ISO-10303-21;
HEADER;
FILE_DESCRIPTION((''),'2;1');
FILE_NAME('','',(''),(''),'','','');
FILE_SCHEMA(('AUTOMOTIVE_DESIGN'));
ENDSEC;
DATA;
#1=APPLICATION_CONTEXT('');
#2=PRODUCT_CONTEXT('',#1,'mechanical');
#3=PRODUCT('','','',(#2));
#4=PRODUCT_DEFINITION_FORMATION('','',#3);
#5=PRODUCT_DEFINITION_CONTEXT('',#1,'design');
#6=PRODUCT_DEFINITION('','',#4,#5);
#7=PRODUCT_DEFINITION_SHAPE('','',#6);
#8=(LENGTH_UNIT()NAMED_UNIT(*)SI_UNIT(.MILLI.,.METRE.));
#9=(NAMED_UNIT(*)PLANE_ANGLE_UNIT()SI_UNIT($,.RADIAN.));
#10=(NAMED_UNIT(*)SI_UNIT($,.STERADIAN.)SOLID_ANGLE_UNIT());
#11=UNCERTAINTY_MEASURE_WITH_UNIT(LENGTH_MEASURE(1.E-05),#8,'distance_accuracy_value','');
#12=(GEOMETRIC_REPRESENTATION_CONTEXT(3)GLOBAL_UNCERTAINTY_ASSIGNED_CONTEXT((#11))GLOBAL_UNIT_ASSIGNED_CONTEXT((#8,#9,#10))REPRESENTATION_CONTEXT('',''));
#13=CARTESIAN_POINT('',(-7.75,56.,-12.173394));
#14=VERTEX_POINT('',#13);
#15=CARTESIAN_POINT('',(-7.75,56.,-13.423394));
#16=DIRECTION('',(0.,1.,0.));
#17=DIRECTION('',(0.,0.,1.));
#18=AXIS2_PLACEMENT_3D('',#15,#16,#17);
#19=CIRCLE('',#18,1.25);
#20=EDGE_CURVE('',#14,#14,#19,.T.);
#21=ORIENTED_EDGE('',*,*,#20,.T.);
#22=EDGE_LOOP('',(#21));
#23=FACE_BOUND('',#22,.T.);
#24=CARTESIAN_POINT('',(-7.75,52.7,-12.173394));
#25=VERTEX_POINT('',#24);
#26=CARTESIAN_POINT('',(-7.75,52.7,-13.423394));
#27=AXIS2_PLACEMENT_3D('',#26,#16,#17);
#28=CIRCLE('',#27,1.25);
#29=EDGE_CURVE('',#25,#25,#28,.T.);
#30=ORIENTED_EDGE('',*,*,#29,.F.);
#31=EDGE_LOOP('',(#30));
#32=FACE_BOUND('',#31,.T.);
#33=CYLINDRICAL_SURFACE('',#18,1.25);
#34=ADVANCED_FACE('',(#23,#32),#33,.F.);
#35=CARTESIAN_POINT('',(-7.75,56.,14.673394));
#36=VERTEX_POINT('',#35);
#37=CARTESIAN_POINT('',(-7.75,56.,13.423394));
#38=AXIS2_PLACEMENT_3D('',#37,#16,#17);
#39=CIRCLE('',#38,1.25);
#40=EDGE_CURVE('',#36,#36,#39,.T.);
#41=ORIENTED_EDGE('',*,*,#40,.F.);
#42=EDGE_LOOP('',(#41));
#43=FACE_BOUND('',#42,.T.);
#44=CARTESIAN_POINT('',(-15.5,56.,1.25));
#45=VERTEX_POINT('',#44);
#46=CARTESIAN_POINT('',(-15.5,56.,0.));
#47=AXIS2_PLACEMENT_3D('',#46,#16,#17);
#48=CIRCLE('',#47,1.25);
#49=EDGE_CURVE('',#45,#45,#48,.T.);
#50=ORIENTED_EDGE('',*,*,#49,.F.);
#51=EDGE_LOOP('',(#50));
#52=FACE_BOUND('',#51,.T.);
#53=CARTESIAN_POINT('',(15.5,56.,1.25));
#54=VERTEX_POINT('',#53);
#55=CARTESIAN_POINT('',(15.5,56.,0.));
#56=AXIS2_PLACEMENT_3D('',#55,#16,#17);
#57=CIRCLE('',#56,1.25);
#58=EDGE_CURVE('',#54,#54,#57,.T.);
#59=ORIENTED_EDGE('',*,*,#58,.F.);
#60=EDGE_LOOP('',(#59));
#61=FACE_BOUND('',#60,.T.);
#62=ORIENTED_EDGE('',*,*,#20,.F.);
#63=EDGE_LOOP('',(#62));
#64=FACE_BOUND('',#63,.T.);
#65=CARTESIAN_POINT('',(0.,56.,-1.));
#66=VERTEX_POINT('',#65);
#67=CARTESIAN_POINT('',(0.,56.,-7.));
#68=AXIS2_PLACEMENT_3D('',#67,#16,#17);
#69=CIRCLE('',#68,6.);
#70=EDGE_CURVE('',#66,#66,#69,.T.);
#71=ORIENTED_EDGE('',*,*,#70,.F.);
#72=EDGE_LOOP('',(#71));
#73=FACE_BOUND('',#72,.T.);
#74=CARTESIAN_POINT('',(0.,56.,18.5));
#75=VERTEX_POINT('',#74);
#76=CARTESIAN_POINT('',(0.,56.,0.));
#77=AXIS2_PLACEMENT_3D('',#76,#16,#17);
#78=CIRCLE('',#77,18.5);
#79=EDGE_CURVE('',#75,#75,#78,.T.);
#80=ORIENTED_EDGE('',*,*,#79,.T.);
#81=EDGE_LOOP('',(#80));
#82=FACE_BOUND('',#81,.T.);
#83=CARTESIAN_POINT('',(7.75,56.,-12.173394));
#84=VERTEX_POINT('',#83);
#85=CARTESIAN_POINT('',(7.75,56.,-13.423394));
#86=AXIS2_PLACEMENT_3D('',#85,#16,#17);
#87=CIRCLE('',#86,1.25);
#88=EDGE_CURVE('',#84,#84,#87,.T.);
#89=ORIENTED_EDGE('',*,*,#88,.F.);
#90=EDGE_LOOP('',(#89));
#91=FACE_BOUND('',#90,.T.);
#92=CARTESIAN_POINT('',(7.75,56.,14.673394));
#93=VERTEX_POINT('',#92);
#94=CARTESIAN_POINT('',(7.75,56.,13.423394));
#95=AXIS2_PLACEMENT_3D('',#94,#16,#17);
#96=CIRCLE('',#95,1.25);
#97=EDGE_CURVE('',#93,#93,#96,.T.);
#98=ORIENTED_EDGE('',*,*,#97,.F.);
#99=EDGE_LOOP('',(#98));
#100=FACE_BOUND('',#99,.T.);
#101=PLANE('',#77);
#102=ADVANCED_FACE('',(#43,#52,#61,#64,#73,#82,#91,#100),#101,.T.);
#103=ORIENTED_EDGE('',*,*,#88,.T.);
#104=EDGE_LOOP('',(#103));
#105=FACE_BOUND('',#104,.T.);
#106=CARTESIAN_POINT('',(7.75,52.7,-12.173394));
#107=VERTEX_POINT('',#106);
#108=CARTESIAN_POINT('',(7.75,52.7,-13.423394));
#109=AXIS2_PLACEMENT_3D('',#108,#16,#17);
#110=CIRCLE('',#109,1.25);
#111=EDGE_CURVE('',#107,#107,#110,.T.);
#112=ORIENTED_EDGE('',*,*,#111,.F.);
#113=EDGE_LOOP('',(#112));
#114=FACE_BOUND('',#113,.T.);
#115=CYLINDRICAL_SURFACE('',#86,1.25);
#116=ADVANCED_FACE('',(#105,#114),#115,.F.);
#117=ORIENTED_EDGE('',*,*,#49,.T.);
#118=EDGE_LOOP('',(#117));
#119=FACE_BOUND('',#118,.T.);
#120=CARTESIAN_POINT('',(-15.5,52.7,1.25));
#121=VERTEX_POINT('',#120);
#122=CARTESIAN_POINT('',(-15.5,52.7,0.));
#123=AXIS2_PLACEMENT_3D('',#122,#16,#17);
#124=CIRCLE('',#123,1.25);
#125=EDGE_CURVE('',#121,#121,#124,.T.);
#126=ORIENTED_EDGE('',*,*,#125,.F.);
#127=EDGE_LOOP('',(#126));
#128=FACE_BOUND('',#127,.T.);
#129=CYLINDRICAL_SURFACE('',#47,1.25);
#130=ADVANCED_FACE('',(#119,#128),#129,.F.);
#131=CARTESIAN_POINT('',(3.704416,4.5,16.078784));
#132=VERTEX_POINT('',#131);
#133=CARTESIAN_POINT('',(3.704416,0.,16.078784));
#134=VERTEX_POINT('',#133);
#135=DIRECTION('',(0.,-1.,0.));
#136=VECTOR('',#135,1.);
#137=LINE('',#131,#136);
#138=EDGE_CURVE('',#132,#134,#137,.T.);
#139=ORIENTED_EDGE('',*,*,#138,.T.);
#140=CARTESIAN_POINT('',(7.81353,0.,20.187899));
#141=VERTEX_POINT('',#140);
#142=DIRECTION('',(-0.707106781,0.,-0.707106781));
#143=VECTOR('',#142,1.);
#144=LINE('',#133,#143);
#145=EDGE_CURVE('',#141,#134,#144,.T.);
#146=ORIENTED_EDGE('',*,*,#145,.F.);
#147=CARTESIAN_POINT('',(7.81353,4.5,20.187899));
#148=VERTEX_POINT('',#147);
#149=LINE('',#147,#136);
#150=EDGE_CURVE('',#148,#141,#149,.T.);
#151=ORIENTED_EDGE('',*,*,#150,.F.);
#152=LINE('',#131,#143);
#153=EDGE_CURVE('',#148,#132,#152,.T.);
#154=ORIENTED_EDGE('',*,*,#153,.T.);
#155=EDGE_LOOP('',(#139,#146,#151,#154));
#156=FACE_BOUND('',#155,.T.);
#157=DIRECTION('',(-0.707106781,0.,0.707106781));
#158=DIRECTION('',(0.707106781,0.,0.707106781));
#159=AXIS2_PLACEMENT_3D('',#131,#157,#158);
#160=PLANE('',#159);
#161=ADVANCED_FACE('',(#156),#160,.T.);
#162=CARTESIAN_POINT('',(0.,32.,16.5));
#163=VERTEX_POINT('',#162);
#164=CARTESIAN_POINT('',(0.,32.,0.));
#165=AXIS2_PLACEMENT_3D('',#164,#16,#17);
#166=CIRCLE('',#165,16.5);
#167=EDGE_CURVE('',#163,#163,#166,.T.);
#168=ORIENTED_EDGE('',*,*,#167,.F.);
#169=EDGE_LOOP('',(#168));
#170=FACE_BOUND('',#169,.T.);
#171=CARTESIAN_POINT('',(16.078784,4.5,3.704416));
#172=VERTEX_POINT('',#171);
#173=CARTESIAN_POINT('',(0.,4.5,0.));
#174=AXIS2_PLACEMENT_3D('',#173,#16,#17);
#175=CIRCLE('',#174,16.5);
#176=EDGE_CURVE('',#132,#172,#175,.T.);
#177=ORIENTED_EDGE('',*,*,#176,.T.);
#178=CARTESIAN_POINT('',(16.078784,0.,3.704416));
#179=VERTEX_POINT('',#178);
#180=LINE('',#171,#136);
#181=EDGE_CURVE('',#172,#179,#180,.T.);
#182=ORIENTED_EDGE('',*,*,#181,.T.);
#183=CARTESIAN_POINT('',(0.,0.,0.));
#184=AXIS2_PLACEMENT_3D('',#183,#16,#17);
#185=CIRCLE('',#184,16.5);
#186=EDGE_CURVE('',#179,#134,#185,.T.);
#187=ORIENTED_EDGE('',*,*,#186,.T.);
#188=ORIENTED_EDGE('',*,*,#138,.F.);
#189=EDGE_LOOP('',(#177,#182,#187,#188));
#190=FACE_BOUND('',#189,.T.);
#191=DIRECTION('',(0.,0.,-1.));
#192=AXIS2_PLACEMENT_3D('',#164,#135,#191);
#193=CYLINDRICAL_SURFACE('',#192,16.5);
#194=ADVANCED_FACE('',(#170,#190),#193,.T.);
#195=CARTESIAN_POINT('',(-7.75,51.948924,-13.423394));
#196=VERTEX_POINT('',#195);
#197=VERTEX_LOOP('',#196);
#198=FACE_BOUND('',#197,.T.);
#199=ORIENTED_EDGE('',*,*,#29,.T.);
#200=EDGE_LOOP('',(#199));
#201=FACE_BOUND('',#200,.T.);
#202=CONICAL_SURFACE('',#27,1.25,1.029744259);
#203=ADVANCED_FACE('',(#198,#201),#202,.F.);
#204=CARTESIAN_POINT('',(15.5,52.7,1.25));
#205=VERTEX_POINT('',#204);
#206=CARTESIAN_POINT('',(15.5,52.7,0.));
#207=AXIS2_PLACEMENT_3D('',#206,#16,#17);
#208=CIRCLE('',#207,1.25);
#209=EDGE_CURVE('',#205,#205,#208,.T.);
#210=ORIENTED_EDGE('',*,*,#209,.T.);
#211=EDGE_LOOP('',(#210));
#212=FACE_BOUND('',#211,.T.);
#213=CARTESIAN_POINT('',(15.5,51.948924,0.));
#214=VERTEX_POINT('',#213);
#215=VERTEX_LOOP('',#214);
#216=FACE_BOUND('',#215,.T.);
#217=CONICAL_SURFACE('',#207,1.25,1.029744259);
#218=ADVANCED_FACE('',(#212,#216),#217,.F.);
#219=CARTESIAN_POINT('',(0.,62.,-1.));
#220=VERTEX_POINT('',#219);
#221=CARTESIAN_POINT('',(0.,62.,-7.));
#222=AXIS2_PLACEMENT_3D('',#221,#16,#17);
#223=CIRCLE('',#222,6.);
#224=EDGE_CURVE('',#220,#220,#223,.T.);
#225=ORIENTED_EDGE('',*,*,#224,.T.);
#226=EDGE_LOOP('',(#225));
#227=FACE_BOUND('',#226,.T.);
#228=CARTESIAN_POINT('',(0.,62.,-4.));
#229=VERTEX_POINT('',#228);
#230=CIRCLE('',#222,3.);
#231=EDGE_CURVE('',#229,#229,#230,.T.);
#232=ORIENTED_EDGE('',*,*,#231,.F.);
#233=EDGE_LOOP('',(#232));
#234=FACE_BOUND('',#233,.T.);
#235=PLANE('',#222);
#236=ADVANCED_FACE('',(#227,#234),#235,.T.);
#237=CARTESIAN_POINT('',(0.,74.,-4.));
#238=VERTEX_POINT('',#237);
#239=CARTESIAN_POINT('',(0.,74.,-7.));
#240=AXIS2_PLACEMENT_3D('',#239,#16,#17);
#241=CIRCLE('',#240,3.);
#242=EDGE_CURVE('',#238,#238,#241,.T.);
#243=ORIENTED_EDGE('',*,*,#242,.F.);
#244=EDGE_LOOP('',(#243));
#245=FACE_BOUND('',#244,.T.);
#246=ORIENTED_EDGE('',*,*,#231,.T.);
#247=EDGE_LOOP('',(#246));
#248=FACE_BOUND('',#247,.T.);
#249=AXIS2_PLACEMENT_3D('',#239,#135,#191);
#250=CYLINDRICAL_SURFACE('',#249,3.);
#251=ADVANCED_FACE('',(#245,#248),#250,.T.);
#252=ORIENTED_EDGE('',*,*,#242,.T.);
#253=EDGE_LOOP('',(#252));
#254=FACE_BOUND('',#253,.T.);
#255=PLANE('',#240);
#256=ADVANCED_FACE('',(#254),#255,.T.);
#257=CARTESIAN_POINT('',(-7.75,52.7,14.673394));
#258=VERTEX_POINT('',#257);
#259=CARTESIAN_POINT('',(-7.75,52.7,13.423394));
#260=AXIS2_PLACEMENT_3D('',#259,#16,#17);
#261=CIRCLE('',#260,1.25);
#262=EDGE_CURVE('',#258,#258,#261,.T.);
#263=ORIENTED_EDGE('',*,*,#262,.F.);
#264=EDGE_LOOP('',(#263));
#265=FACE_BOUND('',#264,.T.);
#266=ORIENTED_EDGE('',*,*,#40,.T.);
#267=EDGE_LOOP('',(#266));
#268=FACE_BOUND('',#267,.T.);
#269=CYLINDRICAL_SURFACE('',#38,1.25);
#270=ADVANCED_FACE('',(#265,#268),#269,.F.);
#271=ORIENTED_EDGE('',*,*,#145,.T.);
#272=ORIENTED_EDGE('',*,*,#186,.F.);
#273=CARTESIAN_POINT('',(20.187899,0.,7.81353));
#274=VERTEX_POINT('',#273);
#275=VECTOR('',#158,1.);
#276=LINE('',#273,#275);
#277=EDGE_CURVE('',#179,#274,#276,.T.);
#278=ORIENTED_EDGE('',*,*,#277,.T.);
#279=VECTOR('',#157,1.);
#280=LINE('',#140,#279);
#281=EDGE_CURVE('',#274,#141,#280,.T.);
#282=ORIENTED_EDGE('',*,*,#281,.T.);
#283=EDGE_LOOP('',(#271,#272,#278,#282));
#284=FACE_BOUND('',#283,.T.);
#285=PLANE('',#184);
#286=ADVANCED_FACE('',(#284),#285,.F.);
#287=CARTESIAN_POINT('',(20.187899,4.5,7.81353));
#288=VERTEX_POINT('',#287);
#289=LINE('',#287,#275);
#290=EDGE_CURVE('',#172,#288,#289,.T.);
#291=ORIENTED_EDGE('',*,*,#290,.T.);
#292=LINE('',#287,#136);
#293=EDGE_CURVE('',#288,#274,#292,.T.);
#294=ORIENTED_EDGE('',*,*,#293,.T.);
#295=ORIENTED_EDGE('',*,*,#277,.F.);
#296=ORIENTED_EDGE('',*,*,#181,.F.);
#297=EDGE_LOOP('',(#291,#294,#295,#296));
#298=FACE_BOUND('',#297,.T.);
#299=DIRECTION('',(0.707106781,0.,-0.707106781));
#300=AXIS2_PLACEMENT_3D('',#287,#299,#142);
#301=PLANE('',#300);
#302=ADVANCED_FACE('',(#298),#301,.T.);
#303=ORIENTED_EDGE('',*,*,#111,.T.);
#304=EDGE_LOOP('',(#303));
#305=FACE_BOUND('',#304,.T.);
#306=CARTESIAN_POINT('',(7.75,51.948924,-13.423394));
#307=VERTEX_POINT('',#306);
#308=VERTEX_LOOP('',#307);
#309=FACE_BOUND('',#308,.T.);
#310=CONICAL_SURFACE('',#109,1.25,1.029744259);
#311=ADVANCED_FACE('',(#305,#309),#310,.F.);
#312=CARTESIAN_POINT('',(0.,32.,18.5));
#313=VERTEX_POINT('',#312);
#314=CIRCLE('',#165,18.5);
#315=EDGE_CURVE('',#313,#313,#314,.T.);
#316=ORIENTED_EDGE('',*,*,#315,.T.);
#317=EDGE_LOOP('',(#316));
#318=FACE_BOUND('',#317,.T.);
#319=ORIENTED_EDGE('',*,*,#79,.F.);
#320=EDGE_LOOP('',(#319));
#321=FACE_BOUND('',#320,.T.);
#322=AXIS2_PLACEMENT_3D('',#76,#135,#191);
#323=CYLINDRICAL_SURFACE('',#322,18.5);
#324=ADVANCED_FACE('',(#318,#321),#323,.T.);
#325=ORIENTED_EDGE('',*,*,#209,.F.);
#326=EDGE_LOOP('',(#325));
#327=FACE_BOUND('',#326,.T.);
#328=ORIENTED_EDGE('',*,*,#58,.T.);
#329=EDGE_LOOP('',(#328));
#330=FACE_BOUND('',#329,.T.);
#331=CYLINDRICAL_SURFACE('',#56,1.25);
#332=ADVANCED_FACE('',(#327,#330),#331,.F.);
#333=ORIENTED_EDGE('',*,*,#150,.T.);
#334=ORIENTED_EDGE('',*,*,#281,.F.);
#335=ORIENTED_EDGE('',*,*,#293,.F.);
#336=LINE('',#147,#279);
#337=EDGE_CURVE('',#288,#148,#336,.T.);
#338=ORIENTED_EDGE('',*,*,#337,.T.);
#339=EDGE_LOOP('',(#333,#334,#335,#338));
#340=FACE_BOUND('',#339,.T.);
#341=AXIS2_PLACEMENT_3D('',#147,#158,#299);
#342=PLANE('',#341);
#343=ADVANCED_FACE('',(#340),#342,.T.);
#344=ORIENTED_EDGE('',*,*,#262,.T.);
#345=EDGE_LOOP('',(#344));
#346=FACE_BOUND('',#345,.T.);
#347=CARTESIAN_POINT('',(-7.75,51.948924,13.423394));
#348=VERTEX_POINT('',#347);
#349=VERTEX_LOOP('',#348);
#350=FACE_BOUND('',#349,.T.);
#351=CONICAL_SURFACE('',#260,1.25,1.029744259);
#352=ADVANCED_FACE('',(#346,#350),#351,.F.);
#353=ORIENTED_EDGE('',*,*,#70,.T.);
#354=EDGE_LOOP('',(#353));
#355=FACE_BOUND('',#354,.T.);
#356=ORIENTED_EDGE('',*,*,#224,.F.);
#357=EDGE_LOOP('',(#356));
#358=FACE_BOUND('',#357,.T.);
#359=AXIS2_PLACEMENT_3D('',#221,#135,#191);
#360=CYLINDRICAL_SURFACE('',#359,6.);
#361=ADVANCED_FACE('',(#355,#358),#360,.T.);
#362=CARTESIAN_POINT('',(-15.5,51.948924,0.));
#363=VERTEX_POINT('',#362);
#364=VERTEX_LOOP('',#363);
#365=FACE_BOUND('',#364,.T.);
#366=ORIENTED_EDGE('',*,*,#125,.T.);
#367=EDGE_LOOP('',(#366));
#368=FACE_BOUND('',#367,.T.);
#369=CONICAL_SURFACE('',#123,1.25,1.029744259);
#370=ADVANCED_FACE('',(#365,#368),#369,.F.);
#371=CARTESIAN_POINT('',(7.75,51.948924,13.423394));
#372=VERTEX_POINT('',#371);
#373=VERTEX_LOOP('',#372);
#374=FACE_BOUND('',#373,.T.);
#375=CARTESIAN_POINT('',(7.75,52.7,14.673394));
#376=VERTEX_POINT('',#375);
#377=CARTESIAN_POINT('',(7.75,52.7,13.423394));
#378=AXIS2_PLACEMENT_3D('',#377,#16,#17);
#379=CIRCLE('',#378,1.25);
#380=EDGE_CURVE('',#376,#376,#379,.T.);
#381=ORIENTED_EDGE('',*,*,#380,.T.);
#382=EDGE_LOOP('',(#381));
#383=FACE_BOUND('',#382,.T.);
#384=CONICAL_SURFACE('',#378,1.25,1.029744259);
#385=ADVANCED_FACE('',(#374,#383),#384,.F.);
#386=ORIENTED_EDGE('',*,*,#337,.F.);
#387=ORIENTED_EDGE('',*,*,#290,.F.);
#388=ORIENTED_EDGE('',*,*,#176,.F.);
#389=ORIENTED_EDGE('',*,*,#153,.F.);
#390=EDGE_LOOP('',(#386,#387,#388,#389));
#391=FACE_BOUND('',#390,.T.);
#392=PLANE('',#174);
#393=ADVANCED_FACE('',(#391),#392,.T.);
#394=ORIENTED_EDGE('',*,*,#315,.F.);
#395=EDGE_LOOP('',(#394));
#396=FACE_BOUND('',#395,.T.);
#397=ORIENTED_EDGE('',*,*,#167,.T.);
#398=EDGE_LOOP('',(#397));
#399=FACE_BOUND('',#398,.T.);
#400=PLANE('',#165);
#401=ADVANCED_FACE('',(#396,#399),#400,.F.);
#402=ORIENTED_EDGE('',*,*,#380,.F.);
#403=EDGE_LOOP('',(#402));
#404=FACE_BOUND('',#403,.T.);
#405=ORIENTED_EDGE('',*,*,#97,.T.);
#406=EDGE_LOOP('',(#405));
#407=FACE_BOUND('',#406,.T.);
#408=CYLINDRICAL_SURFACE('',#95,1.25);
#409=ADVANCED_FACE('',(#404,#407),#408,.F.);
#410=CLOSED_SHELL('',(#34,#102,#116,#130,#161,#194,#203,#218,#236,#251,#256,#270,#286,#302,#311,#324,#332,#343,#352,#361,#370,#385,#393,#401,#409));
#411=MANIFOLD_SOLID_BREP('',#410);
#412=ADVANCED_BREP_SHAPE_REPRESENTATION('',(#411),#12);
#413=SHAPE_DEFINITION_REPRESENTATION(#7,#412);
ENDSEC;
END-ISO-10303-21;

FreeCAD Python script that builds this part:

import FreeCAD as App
import Part
import Sketcher
from FreeCAD import Vector
Q = App.Units.Quantity

doc = App.newDocument("Part")
params = doc.addObject("Spreadsheet::Sheet", "Params")
for row, (alias, value) in enumerate([
    ("sketch1_diameter", "33 mm"),
    ("pad1_length", "32 mm"),
    ("sketch2_diameter", "37 mm"),
    ("pad2_length", "24 mm"),
    ("sketch3_diameter", "12 mm"),
    ("pad3_length", "6 mm"),
    ("sketch4_diameter", "6 mm"),
    ("pad4_length", "12 mm"),
    ("sketch5_diameter", "2.5 mm"),
    ("hole_diameter", "2.5 mm"),
    ("hole_depth", "3.3 mm"),
    ("sketch6_length", "17.5 mm"),
    ("pad5_length", "4.5 mm"),
], start=1):
    params.set(f"A{row}", alias)
    params.set(f"B{row}", "=" + value)
    params.setAlias(f"B{row}", alias)

body = doc.addObject("PartDesign::Body", "Body")

# Sketch on XZ plane
sketch1 = doc.addObject("Sketcher::SketchObject", "Sketch")
body.addObject(sketch1)
sketch1.AttachmentSupport = (doc.XZ_Plane, [""])
sketch1.MapMode = "FlatFace"
sketch1.addGeometry(Part.Circle(Vector(0, 0, 0), Vector(0, 0, 1), 16.5), False)
sketch1.addConstraint([
    Sketcher.Constraint("Coincident", 0, 3, -1, 1),
    Sketcher.Constraint("Diameter", 0, 33.0),
])
sketch1.setExpression("Constraints[1]", "Params.sketch1_diameter")
pad1 = doc.addObject("PartDesign::Pad", "Pad")
body.addObject(pad1)
pad1.Profile = sketch1
pad1.setExpression("Length", "Params.pad1_length")
pad1.Reversed = True

# Sketch on XZ plane
sketch2 = doc.addObject("Sketcher::SketchObject", "Sketch001")
body.addObject(sketch2)
sketch2.AttachmentSupport = (doc.XZ_Plane, [""])
sketch2.MapMode = "FlatFace"
sketch2.AttachmentOffset = App.Placement(Vector(0, 0, -32), App.Rotation())
sketch2.addGeometry(Part.Circle(Vector(0, 0, 0), Vector(0, 0, 1), 18.5), False)
sketch2.addConstraint([
    Sketcher.Constraint("Coincident", 0, 3, -1, 1),
    Sketcher.Constraint("Diameter", 0, 37.0),
])
sketch2.setExpression("Constraints[1]", "Params.sketch2_diameter")
pad2 = doc.addObject("PartDesign::Pad", "Pad001")
body.addObject(pad2)
pad2.Profile = sketch2
pad2.setExpression("Length", "Params.pad2_length")
pad2.Reversed = True

# Sketch on XZ plane
sketch3 = doc.addObject("Sketcher::SketchObject", "Sketch002")
body.addObject(sketch3)
sketch3.AttachmentSupport = (doc.XZ_Plane, [""])
sketch3.MapMode = "FlatFace"
sketch3.AttachmentOffset = App.Placement(Vector(0, 0, -56), App.Rotation())
sketch3.addGeometry(Part.Circle(Vector(0, -7, 0), Vector(0, 0, 1), 6), False)
sketch3.addConstraint([
    Sketcher.Constraint("PointOnObject", 0, 3, -2),
    Sketcher.Constraint("Diameter", 0, 12.0),
    Sketcher.Constraint("DistanceY", 0, 3, -1, 1, 7.0),
])
sketch3.setExpression("Constraints[1]", "Params.sketch3_diameter")
pad3 = doc.addObject("PartDesign::Pad", "Pad002")
body.addObject(pad3)
pad3.Profile = sketch3
pad3.setExpression("Length", "Params.pad3_length")
pad3.Reversed = True

# Sketch on XZ plane
sketch4 = doc.addObject("Sketcher::SketchObject", "Sketch003")
body.addObject(sketch4)
sketch4.AttachmentSupport = (doc.XZ_Plane, [""])
sketch4.MapMode = "FlatFace"
sketch4.AttachmentOffset = App.Placement(Vector(0, 0, -62), App.Rotation())
sketch4.addGeometry(Part.Circle(Vector(0, -7, 0), Vector(0, 0, 1), 3), False)
sketch4.addConstraint([
    Sketcher.Constraint("PointOnObject", 0, 3, -2),
    Sketcher.Constraint("Diameter", 0, 6.0),
    Sketcher.Constraint("DistanceY", 0, 3, -1, 1, 7.0),
])
sketch4.setExpression("Constraints[1]", "Params.sketch4_diameter")
pad4 = doc.addObject("PartDesign::Pad", "Pad003")
body.addObject(pad4)
pad4.Profile = sketch4
pad4.setExpression("Length", "Params.pad4_length")
pad4.Reversed = True

# Sketch on XZ plane
sketch5 = doc.addObject("Sketcher::SketchObject", "Sketch004")
body.addObject(sketch5)
sketch5.AttachmentSupport = (doc.XZ_Plane, [""])
sketch5.MapMode = "FlatFace"
sketch5.AttachmentOffset = App.Placement(Vector(0, 0, -56), App.Rotation())
sketch5.addGeometry([
    Part.Circle(Vector(-7.75, -13.423394, 0), Vector(0, 0, 1), 1.25),  # 0
    Part.Circle(Vector(7.75, -13.423394, 0), Vector(0, 0, 1), 1.25),  # 1
    Part.Circle(Vector(15.5, 0, 0), Vector(0, 0, 1), 1.25),  # 2
    Part.Circle(Vector(7.75, 13.423394, 0), Vector(0, 0, 1), 1.25),  # 3
    Part.Circle(Vector(-7.75, 13.423394, 0), Vector(0, 0, 1), 1.25),  # 4
    Part.Circle(Vector(-15.5, 0, 0), Vector(0, 0, 1), 1.25),  # 5
], False)
sketch5.addConstraint([
    Sketcher.Constraint("Equal", 0, 1),
    Sketcher.Constraint("Equal", 1, 2),
    Sketcher.Constraint("Equal", 2, 3),
    Sketcher.Constraint("Equal", 3, 4),
    Sketcher.Constraint("Equal", 4, 5),
    Sketcher.Constraint("Symmetric", 0, 3, 3, 3, -1, 1),
    Sketcher.Constraint("Symmetric", 1, 3, 4, 3, -1, 1),
    Sketcher.Constraint("Symmetric", 2, 3, 5, 3, -1, 1),
    Sketcher.Constraint("Symmetric", 0, 3, 1, 3, -2),
    Sketcher.Constraint("PointOnObject", 2, 3, -1),
    Sketcher.Constraint("Diameter", 0, 2.5),
    Sketcher.Constraint("DistanceX", 5, 3, 2, 3, 31.0),
    Sketcher.Constraint("DistanceX", 0, 3, 1, 3, 15.5),
    Sketcher.Constraint("DistanceY", 0, 3, -1, 1, 13.423394),
])
sketch5.setExpression("Constraints[10]", "Params.sketch5_diameter")
doc.recompute()
hole = doc.addObject("PartDesign::Hole", "Hole")
body.addObject(hole)
hole.Profile = sketch5
hole.ThreadType = "None"
hole.setExpression("Diameter", "Params.hole_diameter")
hole.DepthType = "Dimension"
hole.setExpression("Depth", "Params.hole_depth")
hole.DrillPoint = "Angled"
hole.DrillPointAngle = 118
hole.Reversed = True

# Sketch on XZ plane
sketch6 = doc.addObject("Sketcher::SketchObject", "Sketch005")
body.addObject(sketch6)
sketch6.AttachmentSupport = (doc.XZ_Plane, [""])
sketch6.MapMode = "FlatFace"
sketch6.addGeometry([
    Part.LineSegment(Vector(3.704416, 16.078784, 0), Vector(16.078784, 3.704416, 0)),
    Part.LineSegment(Vector(16.078784, 3.704416, 0), Vector(20.187899, 7.81353, 0)),
    Part.LineSegment(Vector(20.187899, 7.81353, 0), Vector(7.81353, 20.187899, 0)),
    Part.LineSegment(Vector(7.81353, 20.187899, 0), Vector(3.704416, 16.078784, 0)),
], False)
sketch6.addConstraint([
    Sketcher.Constraint("Coincident", 0, 2, 1, 1),
    Sketcher.Constraint("Coincident", 1, 2, 2, 1),
    Sketcher.Constraint("Coincident", 2, 2, 3, 1),
    Sketcher.Constraint("Coincident", 3, 2, 0, 1),
    Sketcher.Constraint("Perpendicular", 0, 1),
    Sketcher.Constraint("Perpendicular", 1, 2),
    Sketcher.Constraint("Perpendicular", 2, 3),
    Sketcher.Constraint("Angle", 0, Q("-45 deg")),
    Sketcher.Constraint("Distance", 0, 17.5),
    Sketcher.Constraint("DistanceX", -1, 1, 1, 2, 20.187899),
    Sketcher.Constraint("DistanceY", -1, 1, 2, 2, 20.187899),
    Sketcher.Constraint("Distance", 1, 5.811165),
])
sketch6.setExpression("Constraints[8]", "Params.sketch6_length")
pad5 = doc.addObject("PartDesign::Pad", "Pad004")
body.addObject(pad5)
pad5.Profile = sketch6
pad5.setExpression("Length", "Params.pad5_length")
pad5.Reversed = True

doc.recompute()
